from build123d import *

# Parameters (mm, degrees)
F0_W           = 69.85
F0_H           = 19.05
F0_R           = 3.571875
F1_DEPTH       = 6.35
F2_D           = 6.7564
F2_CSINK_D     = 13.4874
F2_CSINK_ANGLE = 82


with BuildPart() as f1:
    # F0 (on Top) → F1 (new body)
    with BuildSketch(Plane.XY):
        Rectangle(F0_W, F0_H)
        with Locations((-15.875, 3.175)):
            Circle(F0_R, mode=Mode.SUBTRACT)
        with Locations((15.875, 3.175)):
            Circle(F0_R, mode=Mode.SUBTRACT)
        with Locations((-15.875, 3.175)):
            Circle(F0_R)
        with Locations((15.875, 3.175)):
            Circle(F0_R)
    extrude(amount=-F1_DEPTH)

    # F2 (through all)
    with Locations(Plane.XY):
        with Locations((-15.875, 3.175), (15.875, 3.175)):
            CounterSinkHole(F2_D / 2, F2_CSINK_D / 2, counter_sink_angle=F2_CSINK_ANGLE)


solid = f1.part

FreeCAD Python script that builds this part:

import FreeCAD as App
import Part
import Sketcher

V = App.Vector
Q = App.Units.Quantity

doc = App.newDocument("Part")
body = doc.addObject("PartDesign::Body", "Body")

# Sketch on XY plane
sketch1 = body.newObject("Sketcher::SketchObject", "Sketch")
sketch1.AttachmentSupport = (doc.getObject("XY_Plane"), [""])
sketch1.MapMode = "FlatFace"
sketch1.addGeometry([
    Part.LineSegment(V(-35, 10, 0), V(-35, -10, 0)),
    Part.LineSegment(V(-35, -10, 0), V(35, -10, 0)),
    Part.LineSegment(V(35, -10, 0), V(35, 10, 0)),
    Part.LineSegment(V(35, 10, 0), V(-35, 10, 0)),
], False)
sketch1.addConstraint([
    Sketcher.Constraint("Coincident", 0, 2, 1, 1),
    Sketcher.Constraint("Coincident", 1, 2, 2, 1),
    Sketcher.Constraint("Coincident", 2, 2, 3, 1),
    Sketcher.Constraint("Coincident", 3, 2, 0, 1),
    Sketcher.Constraint("Vertical", 0),
    Sketcher.Constraint("Horizontal", 1),
    Sketcher.Constraint("Vertical", 2),
    Sketcher.Constraint("Horizontal", 3),
    Sketcher.Constraint("Symmetric", 0, 2, 2, 2, -1, 1),
    Sketcher.Constraint("DistanceX", 1, 1, 1, 2, Q("2.75 in")),
    Sketcher.Constraint("DistanceY", 0, 2, 0, 1, Q("0.75 in")),
])
pad1 = body.newObject("PartDesign::Pad", "Pad")
pad1.Profile = sketch1
pad1.Length = Q("0.25 in")
pad1.Reversed = True

# Sketch on XY plane
sketch2 = body.newObject("Sketcher::SketchObject", "Sketch001")
sketch2.AttachmentSupport = (doc.getObject("XY_Plane"), [""])
sketch2.MapMode = "FlatFace"
sketch2.addGeometry([
    Part.Circle(V(-15.9, 3.2, 0), V(0, 0, 1), 3.4),
    Part.Circle(V(15.9, 3.2, 0), V(0, 0, 1), 3.4),
], False)
sketch2.addConstraint([
    Sketcher.Constraint("Equal", 0, 1),
    Sketcher.Constraint("Symmetric", 0, 3, 1, 3, -2),
    Sketcher.Constraint("Diameter", 0, Q("0.266 in")),
    Sketcher.Constraint("DistanceX", 0, 3, 1, 3, Q("1.25 in")),
    Sketcher.Constraint("DistanceY", -1, 1, 0, 3, Q("0.125 in")),
])
doc.recompute()
hole = body.newObject("PartDesign::Hole", "Hole")
hole.Profile = sketch2
hole.ThreadType = "None"
hole.Diameter = Q("0.266 in")
hole.DepthType = "ThroughAll"
hole.HoleCutType = "Countersink"
hole.HoleCutDiameter = Q("0.531 in")
hole.HoleCutCountersinkAngle = 82

doc.recompute()
